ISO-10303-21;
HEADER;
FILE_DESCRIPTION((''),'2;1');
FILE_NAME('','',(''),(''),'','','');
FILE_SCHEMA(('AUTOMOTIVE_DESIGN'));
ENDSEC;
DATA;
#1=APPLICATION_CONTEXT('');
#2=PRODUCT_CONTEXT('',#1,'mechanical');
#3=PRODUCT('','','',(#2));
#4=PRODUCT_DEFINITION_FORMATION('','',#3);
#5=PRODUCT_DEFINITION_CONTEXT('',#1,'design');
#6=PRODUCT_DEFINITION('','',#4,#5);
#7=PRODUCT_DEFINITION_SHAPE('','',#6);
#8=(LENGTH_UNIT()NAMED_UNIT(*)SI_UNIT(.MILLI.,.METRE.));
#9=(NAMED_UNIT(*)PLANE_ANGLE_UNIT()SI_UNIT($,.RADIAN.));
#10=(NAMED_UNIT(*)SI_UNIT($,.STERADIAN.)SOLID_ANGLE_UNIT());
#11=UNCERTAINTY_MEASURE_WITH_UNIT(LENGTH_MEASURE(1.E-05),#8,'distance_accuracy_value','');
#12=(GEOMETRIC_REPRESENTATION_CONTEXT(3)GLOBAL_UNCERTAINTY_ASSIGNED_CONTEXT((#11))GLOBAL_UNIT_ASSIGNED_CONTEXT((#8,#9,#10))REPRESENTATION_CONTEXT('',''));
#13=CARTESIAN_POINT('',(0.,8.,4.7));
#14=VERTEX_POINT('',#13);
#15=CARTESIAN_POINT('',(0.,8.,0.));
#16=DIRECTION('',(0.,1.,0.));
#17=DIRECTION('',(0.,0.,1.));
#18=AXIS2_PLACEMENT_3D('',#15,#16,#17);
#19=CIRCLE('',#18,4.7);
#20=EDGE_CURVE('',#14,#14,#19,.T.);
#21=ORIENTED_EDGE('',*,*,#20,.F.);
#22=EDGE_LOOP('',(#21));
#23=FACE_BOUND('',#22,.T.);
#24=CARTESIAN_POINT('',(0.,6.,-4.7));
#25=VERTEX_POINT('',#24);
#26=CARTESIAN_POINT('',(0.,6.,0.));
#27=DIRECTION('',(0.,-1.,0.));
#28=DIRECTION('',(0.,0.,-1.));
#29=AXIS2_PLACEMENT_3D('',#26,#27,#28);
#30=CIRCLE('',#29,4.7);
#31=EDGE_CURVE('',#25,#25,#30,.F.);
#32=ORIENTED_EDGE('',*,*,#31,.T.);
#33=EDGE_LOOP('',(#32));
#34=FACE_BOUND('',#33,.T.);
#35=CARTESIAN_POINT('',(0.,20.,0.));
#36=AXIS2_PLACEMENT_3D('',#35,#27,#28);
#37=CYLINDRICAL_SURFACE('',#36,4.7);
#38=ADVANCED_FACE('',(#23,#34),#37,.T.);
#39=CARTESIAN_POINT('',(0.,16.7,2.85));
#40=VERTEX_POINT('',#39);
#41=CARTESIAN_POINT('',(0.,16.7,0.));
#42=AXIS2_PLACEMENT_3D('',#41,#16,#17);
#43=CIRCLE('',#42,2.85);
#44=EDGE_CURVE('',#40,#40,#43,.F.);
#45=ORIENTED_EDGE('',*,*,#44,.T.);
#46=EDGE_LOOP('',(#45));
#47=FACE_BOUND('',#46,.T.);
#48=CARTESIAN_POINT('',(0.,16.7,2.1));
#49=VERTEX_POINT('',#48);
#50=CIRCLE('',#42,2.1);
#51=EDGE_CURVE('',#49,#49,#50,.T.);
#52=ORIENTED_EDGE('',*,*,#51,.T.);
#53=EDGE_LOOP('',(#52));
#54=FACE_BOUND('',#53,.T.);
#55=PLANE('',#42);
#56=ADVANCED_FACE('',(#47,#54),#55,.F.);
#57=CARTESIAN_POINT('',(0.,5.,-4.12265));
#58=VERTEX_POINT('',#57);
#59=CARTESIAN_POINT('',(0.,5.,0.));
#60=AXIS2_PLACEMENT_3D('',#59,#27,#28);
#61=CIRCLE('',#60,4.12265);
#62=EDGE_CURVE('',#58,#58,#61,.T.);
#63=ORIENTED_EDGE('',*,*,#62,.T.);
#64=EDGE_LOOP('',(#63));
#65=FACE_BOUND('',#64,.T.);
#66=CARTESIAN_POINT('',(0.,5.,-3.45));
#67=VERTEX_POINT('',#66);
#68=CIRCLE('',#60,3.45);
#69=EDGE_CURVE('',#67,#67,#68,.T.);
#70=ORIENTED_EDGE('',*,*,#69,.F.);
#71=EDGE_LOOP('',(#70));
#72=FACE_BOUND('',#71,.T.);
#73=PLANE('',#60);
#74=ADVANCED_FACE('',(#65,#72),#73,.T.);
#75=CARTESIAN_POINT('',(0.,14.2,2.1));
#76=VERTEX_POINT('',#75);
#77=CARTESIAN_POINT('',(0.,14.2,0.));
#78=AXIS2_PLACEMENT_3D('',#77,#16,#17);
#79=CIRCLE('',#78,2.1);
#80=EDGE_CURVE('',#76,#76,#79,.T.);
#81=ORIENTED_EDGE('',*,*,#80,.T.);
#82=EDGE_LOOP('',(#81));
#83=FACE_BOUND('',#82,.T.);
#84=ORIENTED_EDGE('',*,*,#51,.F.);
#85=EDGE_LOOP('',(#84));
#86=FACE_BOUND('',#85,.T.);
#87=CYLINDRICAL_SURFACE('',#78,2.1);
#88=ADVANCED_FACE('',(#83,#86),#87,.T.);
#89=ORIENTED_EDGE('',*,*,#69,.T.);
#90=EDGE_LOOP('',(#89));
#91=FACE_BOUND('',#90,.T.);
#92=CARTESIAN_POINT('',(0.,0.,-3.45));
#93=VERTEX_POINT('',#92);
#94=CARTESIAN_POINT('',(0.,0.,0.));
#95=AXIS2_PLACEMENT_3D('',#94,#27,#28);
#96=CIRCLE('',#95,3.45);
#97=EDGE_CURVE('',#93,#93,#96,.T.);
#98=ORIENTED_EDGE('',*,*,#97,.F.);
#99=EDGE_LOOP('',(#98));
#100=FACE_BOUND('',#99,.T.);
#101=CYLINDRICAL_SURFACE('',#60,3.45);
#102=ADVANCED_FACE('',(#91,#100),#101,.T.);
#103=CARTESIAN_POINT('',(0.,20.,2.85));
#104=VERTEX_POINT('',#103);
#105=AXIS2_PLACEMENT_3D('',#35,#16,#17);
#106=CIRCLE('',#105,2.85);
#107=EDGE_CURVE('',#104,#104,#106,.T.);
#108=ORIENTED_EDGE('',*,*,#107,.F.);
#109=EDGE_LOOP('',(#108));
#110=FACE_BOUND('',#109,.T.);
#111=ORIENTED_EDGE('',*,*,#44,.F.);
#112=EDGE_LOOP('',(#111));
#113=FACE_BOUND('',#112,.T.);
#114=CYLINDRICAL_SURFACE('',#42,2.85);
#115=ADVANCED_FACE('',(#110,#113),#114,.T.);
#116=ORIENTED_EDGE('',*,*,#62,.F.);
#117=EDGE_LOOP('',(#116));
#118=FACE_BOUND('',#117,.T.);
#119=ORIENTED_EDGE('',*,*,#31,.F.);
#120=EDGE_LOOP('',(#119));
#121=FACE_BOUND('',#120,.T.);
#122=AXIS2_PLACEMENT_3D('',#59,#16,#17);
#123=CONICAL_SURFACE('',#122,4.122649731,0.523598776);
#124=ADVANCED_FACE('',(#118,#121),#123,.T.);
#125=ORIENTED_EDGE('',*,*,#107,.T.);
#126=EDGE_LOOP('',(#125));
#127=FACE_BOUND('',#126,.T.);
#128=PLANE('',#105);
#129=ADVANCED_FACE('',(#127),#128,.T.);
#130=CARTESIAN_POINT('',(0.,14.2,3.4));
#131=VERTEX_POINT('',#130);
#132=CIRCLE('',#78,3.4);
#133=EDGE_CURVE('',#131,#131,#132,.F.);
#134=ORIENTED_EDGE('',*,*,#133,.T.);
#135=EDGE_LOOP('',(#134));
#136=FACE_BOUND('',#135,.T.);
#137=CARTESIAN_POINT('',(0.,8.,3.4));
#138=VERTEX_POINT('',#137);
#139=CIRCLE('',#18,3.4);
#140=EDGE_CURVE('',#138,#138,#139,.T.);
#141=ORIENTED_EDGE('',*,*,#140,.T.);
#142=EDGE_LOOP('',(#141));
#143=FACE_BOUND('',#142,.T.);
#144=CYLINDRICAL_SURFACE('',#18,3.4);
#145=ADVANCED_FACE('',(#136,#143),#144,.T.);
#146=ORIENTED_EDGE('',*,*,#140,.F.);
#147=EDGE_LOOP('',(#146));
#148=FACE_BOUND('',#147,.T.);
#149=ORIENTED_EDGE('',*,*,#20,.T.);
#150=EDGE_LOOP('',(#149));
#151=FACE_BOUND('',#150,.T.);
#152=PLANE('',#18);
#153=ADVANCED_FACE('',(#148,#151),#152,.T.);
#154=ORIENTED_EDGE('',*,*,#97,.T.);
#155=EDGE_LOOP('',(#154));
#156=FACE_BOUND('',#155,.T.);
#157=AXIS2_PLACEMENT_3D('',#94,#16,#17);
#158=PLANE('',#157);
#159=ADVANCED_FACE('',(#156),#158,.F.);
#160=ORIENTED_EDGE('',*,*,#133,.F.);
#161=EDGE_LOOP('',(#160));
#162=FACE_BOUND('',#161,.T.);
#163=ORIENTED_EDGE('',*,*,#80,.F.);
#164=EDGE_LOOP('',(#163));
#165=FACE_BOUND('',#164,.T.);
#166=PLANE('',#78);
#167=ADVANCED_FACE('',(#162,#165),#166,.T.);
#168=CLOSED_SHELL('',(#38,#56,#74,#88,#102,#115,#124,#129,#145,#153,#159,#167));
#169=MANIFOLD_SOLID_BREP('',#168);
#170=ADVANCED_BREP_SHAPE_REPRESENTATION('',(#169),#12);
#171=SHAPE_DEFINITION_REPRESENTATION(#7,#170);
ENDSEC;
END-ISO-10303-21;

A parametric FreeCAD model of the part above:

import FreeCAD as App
import Part
import Sketcher
from FreeCAD import Vector


def edges_at(feature, points):
    """Names of the edges that pass closest to the given points."""
    edges = feature.Shape.Edges
    near = lambda p: min(range(len(edges)), key=lambda i: edges[i].distToShape(Part.Vertex(*p))[0])
    return sorted({f"Edge{near(p) + 1}" for p in points})

doc = App.newDocument("Part")
params = doc.addObject("Spreadsheet::Sheet", "Params")
for row, (alias, value) in enumerate([
    ("sketch1_diameter", "9.4 mm"),
    ("pad1_length", "20 mm"),
    ("sketch2_diameter", "6.9 mm"),
    ("pocket1_length", "5 mm"),
    ("sketch3_diameter", "6.8 mm"),
    ("pocket2_length", "12 mm"),
    ("sketch4_diameter", "5.7 mm"),
    ("pocket3_length", "3.3 mm"),
    ("sketch5_diameter", "4.2 mm"),
    ("pocket4_length", "2.5 mm"),
    ("chamfer_size", "1 mm"),
    ("chamfer_size2", "0.57735 mm"),
], start=1):
    params.set(f"A{row}", alias)
    params.set(f"B{row}", "=" + value)
    params.setAlias(f"B{row}", alias)

body = doc.addObject("PartDesign::Body", "Body")

sketch1 = body.newObject("Sketcher::SketchObject", "Sketch")
sketch1.AttachmentSupport = (doc.getObject("XZ_Plane"), [""])
sketch1.MapMode = "FlatFace"
sketch1.addGeometry(Part.Circle(Vector(0, 0, 0), Vector(0, 0, 1), 4.7), False)
sketch1.addConstraint(Sketcher.Constraint("Coincident", 0, 3, -1, 1))
sketch1.addConstraint(Sketcher.Constraint("Diameter", 0, 9.4))
sketch1.setExpression("Constraints[1]", "Params.sketch1_diameter")
pad1 = body.newObject("PartDesign::Pad", "Pad")
pad1.Profile = sketch1
pad1.setExpression("Length", "Params.pad1_length")
pad1.Reversed = True

sketch2 = body.newObject("Sketcher::SketchObject", "Sketch001")
sketch2.AttachmentSupport = (doc.getObject("XZ_Plane"), [""])
sketch2.MapMode = "FlatFace"
sketch2.addGeometry(Part.LineSegment(Vector(-8.1, 8.1, 0), Vector(-8.1, -8.1, 0)), False)
sketch2.addGeometry(Part.LineSegment(Vector(-8.1, -8.1, 0), Vector(8.1, -8.1, 0)), False)
sketch2.addGeometry(Part.LineSegment(Vector(8.1, -8.1, 0), Vector(8.1, 8.1, 0)), False)
sketch2.addGeometry(Part.LineSegment(Vector(8.1, 8.1, 0), Vector(-8.1, 8.1, 0)), False)
sketch2.addGeometry(Part.Circle(Vector(0, 0, 0), Vector(0, 0, 1), 3.5), False)
sketch2.addConstraint(Sketcher.Constraint("Coincident", 0, 2, 1, 1))
sketch2.addConstraint(Sketcher.Constraint("Coincident", 1, 2, 2, 1))
sketch2.addConstraint(Sketcher.Constraint("Coincident", 2, 2, 3, 1))
sketch2.addConstraint(Sketcher.Constraint("Coincident", 3, 2, 0, 1))
sketch2.addConstraint(Sketcher.Constraint("Vertical", 0))
sketch2.addConstraint(Sketcher.Constraint("Horizontal", 1))
sketch2.addConstraint(Sketcher.Constraint("Vertical", 2))
sketch2.addConstraint(Sketcher.Constraint("Horizontal", 3))
sketch2.addConstraint(Sketcher.Constraint("Coincident", 4, 3, -1, 1))
sketch2.addConstraint(Sketcher.Constraint("Symmetric", 0, 2, 2, 2, -1, 1))
sketch2.addConstraint(Sketcher.Constraint("Equal", 3, 0))
sketch2.addConstraint(Sketcher.Constraint("Diameter", 4, 6.9))
sketch2.addConstraint(Sketcher.Constraint("DistanceX", 1, 1, 1, 2, 16.202))
sketch2.setExpression("Constraints[11]", "Params.sketch2_diameter")
pocket1 = body.newObject("PartDesign::Pocket", "Pocket")
pocket1.Profile = sketch2
pocket1.setExpression("Length", "Params.pocket1_length")

sketch3 = body.newObject("Sketcher::SketchObject", "Sketch002")
sketch3.AttachmentSupport = (doc.getObject("XZ_Plane"), [""])
sketch3.MapMode = "FlatFace"
sketch3.AttachmentOffset = App.Placement(Vector(0, 0, -20), App.Rotation())
sketch3.addGeometry(Part.LineSegment(Vector(-8.1, -8.1, 0), Vector(-8.1, 8.1, 0)), False)
sketch3.addGeometry(Part.LineSegment(Vector(-8.1, 8.1, 0), Vector(8.1, 8.1, 0)), False)
sketch3.addGeometry(Part.LineSegment(Vector(8.1, 8.1, 0), Vector(8.1, -8.1, 0)), False)
sketch3.addGeometry(Part.LineSegment(Vector(8.1, -8.1, 0), Vector(-8.1, -8.1, 0)), False)
sketch3.addGeometry(Part.Circle(Vector(0, 0, 0), Vector(0, 0, 1), 3.4), False)
sketch3.addConstraint(Sketcher.Constraint("Coincident", 0, 2, 1, 1))
sketch3.addConstraint(Sketcher.Constraint("Coincident", 1, 2, 2, 1))
sketch3.addConstraint(Sketcher.Constraint("Coincident", 2, 2, 3, 1))
sketch3.addConstraint(Sketcher.Constraint("Coincident", 3, 2, 0, 1))
sketch3.addConstraint(Sketcher.Constraint("Vertical", 0))
sketch3.addConstraint(Sketcher.Constraint("Horizontal", 1))
sketch3.addConstraint(Sketcher.Constraint("Vertical", 2))
sketch3.addConstraint(Sketcher.Constraint("Horizontal", 3))
sketch3.addConstraint(Sketcher.Constraint("Coincident", 4, 3, -1, 1))
sketch3.addConstraint(Sketcher.Constraint("Symmetric", 0, 2, 2, 2, -1, 1))
sketch3.addConstraint(Sketcher.Constraint("Equal", 3, 0))
sketch3.addConstraint(Sketcher.Constraint("Diameter", 4, 6.8))
sketch3.addConstraint(Sketcher.Constraint("DistanceX", 1, 1, 1, 2, 16.202))
sketch3.setExpression("Constraints[11]", "Params.sketch3_diameter")
pocket2 = body.newObject("PartDesign::Pocket", "Pocket001")
pocket2.Profile = sketch3
pocket2.setExpression("Length", "Params.pocket2_length")
pocket2.Reversed = True

sketch4 = body.newObject("Sketcher::SketchObject", "Sketch003")
sketch4.AttachmentSupport = (doc.getObject("XZ_Plane"), [""])
sketch4.MapMode = "FlatFace"
sketch4.AttachmentOffset = App.Placement(Vector(0, 0, -20), App.Rotation())
sketch4.addGeometry(Part.LineSegment(Vector(-8.1, -8.1, 0), Vector(-8.1, 8.1, 0)), False)
sketch4.addGeometry(Part.LineSegment(Vector(-8.1, 8.1, 0), Vector(8.1, 8.1, 0)), False)
sketch4.addGeometry(Part.LineSegment(Vector(8.1, 8.1, 0), Vector(8.1, -8.1, 0)), False)
sketch4.addGeometry(Part.LineSegment(Vector(8.1, -8.1, 0), Vector(-8.1, -8.1, 0)), False)
sketch4.addGeometry(Part.Circle(Vector(0, 0, 0), Vector(0, 0, 1), 2.9), False)
sketch4.addConstraint(Sketcher.Constraint("Coincident", 0, 2, 1, 1))
sketch4.addConstraint(Sketcher.Constraint("Coincident", 1, 2, 2, 1))
sketch4.addConstraint(Sketcher.Constraint("Coincident", 2, 2, 3, 1))
sketch4.addConstraint(Sketcher.Constraint("Coincident", 3, 2, 0, 1))
sketch4.addConstraint(Sketcher.Constraint("Vertical", 0))
sketch4.addConstraint(Sketcher.Constraint("Horizontal", 1))
sketch4.addConstraint(Sketcher.Constraint("Vertical", 2))
sketch4.addConstraint(Sketcher.Constraint("Horizontal", 3))
sketch4.addConstraint(Sketcher.Constraint("Coincident", 4, 3, -1, 1))
sketch4.addConstraint(Sketcher.Constraint("Symmetric", 0, 2, 2, 2, -1, 1))
sketch4.addConstraint(Sketcher.Constraint("Equal", 3, 0))
sketch4.addConstraint(Sketcher.Constraint("Diameter", 4, 5.7))
sketch4.addConstraint(Sketcher.Constraint("DistanceX", 1, 1, 1, 2, 16.202))
sketch4.setExpression("Constraints[11]", "Params.sketch4_diameter")
pocket3 = body.newObject("PartDesign::Pocket", "Pocket002")
pocket3.Profile = sketch4
pocket3.setExpression("Length", "Params.pocket3_length")
pocket3.Reversed = True

sketch5 = body.newObject("Sketcher::SketchObject", "Sketch004")
sketch5.AttachmentSupport = (doc.getObject("XZ_Plane"), [""])
sketch5.MapMode = "FlatFace"
sketch5.AttachmentOffset = App.Placement(Vector(0, 0, -16.7), App.Rotation())
sketch5.addGeometry(Part.LineSegment(Vector(-8.1, -8.1, 0), Vector(-8.1, 8.1, 0)), False)
sketch5.addGeometry(Part.LineSegment(Vector(-8.1, 8.1, 0), Vector(8.1, 8.1, 0)), False)
sketch5.addGeometry(Part.LineSegment(Vector(8.1, 8.1, 0), Vector(8.1, -8.1, 0)), False)
sketch5.addGeometry(Part.LineSegment(Vector(8.1, -8.1, 0), Vector(-8.1, -8.1, 0)), False)
sketch5.addGeometry(Part.Circle(Vector(0, 0, 0), Vector(0, 0, 1), 2.1), False)
sketch5.addConstraint(Sketcher.Constraint("Coincident", 0, 2, 1, 1))
sketch5.addConstraint(Sketcher.Constraint("Coincident", 1, 2, 2, 1))
sketch5.addConstraint(Sketcher.Constraint("Coincident", 2, 2, 3, 1))
sketch5.addConstraint(Sketcher.Constraint("Coincident", 3, 2, 0, 1))
sketch5.addConstraint(Sketcher.Constraint("Vertical", 0))
sketch5.addConstraint(Sketcher.Constraint("Horizontal", 1))
sketch5.addConstraint(Sketcher.Constraint("Vertical", 2))
sketch5.addConstraint(Sketcher.Constraint("Horizontal", 3))
sketch5.addConstraint(Sketcher.Constraint("Coincident", 4, 3, -1, 1))
sketch5.addConstraint(Sketcher.Constraint("Symmetric", 0, 2, 2, 2, -1, 1))
sketch5.addConstraint(Sketcher.Constraint("Equal", 3, 0))
sketch5.addConstraint(Sketcher.Constraint("Diameter", 4, 4.2))
sketch5.addConstraint(Sketcher.Constraint("DistanceX", 1, 1, 1, 2, 16.202))
sketch5.setExpression("Constraints[11]", "Params.sketch5_diameter")
pocket4 = body.newObject("PartDesign::Pocket", "Pocket003")
pocket4.Profile = sketch5
pocket4.setExpression("Length", "Params.pocket4_length")
pocket4.Reversed = True
doc.recompute()

chamfer = body.newObject("PartDesign::Chamfer", "Chamfer")
chamfer.Base = (pocket4, edges_at(pocket4, [(0, 5, -4.7)]))
chamfer.ChamferType = "Two distances"
chamfer.setExpression("Size", "Params.chamfer_size")
chamfer.setExpression("Size2", "Params.chamfer_size2")

doc.recompute()
